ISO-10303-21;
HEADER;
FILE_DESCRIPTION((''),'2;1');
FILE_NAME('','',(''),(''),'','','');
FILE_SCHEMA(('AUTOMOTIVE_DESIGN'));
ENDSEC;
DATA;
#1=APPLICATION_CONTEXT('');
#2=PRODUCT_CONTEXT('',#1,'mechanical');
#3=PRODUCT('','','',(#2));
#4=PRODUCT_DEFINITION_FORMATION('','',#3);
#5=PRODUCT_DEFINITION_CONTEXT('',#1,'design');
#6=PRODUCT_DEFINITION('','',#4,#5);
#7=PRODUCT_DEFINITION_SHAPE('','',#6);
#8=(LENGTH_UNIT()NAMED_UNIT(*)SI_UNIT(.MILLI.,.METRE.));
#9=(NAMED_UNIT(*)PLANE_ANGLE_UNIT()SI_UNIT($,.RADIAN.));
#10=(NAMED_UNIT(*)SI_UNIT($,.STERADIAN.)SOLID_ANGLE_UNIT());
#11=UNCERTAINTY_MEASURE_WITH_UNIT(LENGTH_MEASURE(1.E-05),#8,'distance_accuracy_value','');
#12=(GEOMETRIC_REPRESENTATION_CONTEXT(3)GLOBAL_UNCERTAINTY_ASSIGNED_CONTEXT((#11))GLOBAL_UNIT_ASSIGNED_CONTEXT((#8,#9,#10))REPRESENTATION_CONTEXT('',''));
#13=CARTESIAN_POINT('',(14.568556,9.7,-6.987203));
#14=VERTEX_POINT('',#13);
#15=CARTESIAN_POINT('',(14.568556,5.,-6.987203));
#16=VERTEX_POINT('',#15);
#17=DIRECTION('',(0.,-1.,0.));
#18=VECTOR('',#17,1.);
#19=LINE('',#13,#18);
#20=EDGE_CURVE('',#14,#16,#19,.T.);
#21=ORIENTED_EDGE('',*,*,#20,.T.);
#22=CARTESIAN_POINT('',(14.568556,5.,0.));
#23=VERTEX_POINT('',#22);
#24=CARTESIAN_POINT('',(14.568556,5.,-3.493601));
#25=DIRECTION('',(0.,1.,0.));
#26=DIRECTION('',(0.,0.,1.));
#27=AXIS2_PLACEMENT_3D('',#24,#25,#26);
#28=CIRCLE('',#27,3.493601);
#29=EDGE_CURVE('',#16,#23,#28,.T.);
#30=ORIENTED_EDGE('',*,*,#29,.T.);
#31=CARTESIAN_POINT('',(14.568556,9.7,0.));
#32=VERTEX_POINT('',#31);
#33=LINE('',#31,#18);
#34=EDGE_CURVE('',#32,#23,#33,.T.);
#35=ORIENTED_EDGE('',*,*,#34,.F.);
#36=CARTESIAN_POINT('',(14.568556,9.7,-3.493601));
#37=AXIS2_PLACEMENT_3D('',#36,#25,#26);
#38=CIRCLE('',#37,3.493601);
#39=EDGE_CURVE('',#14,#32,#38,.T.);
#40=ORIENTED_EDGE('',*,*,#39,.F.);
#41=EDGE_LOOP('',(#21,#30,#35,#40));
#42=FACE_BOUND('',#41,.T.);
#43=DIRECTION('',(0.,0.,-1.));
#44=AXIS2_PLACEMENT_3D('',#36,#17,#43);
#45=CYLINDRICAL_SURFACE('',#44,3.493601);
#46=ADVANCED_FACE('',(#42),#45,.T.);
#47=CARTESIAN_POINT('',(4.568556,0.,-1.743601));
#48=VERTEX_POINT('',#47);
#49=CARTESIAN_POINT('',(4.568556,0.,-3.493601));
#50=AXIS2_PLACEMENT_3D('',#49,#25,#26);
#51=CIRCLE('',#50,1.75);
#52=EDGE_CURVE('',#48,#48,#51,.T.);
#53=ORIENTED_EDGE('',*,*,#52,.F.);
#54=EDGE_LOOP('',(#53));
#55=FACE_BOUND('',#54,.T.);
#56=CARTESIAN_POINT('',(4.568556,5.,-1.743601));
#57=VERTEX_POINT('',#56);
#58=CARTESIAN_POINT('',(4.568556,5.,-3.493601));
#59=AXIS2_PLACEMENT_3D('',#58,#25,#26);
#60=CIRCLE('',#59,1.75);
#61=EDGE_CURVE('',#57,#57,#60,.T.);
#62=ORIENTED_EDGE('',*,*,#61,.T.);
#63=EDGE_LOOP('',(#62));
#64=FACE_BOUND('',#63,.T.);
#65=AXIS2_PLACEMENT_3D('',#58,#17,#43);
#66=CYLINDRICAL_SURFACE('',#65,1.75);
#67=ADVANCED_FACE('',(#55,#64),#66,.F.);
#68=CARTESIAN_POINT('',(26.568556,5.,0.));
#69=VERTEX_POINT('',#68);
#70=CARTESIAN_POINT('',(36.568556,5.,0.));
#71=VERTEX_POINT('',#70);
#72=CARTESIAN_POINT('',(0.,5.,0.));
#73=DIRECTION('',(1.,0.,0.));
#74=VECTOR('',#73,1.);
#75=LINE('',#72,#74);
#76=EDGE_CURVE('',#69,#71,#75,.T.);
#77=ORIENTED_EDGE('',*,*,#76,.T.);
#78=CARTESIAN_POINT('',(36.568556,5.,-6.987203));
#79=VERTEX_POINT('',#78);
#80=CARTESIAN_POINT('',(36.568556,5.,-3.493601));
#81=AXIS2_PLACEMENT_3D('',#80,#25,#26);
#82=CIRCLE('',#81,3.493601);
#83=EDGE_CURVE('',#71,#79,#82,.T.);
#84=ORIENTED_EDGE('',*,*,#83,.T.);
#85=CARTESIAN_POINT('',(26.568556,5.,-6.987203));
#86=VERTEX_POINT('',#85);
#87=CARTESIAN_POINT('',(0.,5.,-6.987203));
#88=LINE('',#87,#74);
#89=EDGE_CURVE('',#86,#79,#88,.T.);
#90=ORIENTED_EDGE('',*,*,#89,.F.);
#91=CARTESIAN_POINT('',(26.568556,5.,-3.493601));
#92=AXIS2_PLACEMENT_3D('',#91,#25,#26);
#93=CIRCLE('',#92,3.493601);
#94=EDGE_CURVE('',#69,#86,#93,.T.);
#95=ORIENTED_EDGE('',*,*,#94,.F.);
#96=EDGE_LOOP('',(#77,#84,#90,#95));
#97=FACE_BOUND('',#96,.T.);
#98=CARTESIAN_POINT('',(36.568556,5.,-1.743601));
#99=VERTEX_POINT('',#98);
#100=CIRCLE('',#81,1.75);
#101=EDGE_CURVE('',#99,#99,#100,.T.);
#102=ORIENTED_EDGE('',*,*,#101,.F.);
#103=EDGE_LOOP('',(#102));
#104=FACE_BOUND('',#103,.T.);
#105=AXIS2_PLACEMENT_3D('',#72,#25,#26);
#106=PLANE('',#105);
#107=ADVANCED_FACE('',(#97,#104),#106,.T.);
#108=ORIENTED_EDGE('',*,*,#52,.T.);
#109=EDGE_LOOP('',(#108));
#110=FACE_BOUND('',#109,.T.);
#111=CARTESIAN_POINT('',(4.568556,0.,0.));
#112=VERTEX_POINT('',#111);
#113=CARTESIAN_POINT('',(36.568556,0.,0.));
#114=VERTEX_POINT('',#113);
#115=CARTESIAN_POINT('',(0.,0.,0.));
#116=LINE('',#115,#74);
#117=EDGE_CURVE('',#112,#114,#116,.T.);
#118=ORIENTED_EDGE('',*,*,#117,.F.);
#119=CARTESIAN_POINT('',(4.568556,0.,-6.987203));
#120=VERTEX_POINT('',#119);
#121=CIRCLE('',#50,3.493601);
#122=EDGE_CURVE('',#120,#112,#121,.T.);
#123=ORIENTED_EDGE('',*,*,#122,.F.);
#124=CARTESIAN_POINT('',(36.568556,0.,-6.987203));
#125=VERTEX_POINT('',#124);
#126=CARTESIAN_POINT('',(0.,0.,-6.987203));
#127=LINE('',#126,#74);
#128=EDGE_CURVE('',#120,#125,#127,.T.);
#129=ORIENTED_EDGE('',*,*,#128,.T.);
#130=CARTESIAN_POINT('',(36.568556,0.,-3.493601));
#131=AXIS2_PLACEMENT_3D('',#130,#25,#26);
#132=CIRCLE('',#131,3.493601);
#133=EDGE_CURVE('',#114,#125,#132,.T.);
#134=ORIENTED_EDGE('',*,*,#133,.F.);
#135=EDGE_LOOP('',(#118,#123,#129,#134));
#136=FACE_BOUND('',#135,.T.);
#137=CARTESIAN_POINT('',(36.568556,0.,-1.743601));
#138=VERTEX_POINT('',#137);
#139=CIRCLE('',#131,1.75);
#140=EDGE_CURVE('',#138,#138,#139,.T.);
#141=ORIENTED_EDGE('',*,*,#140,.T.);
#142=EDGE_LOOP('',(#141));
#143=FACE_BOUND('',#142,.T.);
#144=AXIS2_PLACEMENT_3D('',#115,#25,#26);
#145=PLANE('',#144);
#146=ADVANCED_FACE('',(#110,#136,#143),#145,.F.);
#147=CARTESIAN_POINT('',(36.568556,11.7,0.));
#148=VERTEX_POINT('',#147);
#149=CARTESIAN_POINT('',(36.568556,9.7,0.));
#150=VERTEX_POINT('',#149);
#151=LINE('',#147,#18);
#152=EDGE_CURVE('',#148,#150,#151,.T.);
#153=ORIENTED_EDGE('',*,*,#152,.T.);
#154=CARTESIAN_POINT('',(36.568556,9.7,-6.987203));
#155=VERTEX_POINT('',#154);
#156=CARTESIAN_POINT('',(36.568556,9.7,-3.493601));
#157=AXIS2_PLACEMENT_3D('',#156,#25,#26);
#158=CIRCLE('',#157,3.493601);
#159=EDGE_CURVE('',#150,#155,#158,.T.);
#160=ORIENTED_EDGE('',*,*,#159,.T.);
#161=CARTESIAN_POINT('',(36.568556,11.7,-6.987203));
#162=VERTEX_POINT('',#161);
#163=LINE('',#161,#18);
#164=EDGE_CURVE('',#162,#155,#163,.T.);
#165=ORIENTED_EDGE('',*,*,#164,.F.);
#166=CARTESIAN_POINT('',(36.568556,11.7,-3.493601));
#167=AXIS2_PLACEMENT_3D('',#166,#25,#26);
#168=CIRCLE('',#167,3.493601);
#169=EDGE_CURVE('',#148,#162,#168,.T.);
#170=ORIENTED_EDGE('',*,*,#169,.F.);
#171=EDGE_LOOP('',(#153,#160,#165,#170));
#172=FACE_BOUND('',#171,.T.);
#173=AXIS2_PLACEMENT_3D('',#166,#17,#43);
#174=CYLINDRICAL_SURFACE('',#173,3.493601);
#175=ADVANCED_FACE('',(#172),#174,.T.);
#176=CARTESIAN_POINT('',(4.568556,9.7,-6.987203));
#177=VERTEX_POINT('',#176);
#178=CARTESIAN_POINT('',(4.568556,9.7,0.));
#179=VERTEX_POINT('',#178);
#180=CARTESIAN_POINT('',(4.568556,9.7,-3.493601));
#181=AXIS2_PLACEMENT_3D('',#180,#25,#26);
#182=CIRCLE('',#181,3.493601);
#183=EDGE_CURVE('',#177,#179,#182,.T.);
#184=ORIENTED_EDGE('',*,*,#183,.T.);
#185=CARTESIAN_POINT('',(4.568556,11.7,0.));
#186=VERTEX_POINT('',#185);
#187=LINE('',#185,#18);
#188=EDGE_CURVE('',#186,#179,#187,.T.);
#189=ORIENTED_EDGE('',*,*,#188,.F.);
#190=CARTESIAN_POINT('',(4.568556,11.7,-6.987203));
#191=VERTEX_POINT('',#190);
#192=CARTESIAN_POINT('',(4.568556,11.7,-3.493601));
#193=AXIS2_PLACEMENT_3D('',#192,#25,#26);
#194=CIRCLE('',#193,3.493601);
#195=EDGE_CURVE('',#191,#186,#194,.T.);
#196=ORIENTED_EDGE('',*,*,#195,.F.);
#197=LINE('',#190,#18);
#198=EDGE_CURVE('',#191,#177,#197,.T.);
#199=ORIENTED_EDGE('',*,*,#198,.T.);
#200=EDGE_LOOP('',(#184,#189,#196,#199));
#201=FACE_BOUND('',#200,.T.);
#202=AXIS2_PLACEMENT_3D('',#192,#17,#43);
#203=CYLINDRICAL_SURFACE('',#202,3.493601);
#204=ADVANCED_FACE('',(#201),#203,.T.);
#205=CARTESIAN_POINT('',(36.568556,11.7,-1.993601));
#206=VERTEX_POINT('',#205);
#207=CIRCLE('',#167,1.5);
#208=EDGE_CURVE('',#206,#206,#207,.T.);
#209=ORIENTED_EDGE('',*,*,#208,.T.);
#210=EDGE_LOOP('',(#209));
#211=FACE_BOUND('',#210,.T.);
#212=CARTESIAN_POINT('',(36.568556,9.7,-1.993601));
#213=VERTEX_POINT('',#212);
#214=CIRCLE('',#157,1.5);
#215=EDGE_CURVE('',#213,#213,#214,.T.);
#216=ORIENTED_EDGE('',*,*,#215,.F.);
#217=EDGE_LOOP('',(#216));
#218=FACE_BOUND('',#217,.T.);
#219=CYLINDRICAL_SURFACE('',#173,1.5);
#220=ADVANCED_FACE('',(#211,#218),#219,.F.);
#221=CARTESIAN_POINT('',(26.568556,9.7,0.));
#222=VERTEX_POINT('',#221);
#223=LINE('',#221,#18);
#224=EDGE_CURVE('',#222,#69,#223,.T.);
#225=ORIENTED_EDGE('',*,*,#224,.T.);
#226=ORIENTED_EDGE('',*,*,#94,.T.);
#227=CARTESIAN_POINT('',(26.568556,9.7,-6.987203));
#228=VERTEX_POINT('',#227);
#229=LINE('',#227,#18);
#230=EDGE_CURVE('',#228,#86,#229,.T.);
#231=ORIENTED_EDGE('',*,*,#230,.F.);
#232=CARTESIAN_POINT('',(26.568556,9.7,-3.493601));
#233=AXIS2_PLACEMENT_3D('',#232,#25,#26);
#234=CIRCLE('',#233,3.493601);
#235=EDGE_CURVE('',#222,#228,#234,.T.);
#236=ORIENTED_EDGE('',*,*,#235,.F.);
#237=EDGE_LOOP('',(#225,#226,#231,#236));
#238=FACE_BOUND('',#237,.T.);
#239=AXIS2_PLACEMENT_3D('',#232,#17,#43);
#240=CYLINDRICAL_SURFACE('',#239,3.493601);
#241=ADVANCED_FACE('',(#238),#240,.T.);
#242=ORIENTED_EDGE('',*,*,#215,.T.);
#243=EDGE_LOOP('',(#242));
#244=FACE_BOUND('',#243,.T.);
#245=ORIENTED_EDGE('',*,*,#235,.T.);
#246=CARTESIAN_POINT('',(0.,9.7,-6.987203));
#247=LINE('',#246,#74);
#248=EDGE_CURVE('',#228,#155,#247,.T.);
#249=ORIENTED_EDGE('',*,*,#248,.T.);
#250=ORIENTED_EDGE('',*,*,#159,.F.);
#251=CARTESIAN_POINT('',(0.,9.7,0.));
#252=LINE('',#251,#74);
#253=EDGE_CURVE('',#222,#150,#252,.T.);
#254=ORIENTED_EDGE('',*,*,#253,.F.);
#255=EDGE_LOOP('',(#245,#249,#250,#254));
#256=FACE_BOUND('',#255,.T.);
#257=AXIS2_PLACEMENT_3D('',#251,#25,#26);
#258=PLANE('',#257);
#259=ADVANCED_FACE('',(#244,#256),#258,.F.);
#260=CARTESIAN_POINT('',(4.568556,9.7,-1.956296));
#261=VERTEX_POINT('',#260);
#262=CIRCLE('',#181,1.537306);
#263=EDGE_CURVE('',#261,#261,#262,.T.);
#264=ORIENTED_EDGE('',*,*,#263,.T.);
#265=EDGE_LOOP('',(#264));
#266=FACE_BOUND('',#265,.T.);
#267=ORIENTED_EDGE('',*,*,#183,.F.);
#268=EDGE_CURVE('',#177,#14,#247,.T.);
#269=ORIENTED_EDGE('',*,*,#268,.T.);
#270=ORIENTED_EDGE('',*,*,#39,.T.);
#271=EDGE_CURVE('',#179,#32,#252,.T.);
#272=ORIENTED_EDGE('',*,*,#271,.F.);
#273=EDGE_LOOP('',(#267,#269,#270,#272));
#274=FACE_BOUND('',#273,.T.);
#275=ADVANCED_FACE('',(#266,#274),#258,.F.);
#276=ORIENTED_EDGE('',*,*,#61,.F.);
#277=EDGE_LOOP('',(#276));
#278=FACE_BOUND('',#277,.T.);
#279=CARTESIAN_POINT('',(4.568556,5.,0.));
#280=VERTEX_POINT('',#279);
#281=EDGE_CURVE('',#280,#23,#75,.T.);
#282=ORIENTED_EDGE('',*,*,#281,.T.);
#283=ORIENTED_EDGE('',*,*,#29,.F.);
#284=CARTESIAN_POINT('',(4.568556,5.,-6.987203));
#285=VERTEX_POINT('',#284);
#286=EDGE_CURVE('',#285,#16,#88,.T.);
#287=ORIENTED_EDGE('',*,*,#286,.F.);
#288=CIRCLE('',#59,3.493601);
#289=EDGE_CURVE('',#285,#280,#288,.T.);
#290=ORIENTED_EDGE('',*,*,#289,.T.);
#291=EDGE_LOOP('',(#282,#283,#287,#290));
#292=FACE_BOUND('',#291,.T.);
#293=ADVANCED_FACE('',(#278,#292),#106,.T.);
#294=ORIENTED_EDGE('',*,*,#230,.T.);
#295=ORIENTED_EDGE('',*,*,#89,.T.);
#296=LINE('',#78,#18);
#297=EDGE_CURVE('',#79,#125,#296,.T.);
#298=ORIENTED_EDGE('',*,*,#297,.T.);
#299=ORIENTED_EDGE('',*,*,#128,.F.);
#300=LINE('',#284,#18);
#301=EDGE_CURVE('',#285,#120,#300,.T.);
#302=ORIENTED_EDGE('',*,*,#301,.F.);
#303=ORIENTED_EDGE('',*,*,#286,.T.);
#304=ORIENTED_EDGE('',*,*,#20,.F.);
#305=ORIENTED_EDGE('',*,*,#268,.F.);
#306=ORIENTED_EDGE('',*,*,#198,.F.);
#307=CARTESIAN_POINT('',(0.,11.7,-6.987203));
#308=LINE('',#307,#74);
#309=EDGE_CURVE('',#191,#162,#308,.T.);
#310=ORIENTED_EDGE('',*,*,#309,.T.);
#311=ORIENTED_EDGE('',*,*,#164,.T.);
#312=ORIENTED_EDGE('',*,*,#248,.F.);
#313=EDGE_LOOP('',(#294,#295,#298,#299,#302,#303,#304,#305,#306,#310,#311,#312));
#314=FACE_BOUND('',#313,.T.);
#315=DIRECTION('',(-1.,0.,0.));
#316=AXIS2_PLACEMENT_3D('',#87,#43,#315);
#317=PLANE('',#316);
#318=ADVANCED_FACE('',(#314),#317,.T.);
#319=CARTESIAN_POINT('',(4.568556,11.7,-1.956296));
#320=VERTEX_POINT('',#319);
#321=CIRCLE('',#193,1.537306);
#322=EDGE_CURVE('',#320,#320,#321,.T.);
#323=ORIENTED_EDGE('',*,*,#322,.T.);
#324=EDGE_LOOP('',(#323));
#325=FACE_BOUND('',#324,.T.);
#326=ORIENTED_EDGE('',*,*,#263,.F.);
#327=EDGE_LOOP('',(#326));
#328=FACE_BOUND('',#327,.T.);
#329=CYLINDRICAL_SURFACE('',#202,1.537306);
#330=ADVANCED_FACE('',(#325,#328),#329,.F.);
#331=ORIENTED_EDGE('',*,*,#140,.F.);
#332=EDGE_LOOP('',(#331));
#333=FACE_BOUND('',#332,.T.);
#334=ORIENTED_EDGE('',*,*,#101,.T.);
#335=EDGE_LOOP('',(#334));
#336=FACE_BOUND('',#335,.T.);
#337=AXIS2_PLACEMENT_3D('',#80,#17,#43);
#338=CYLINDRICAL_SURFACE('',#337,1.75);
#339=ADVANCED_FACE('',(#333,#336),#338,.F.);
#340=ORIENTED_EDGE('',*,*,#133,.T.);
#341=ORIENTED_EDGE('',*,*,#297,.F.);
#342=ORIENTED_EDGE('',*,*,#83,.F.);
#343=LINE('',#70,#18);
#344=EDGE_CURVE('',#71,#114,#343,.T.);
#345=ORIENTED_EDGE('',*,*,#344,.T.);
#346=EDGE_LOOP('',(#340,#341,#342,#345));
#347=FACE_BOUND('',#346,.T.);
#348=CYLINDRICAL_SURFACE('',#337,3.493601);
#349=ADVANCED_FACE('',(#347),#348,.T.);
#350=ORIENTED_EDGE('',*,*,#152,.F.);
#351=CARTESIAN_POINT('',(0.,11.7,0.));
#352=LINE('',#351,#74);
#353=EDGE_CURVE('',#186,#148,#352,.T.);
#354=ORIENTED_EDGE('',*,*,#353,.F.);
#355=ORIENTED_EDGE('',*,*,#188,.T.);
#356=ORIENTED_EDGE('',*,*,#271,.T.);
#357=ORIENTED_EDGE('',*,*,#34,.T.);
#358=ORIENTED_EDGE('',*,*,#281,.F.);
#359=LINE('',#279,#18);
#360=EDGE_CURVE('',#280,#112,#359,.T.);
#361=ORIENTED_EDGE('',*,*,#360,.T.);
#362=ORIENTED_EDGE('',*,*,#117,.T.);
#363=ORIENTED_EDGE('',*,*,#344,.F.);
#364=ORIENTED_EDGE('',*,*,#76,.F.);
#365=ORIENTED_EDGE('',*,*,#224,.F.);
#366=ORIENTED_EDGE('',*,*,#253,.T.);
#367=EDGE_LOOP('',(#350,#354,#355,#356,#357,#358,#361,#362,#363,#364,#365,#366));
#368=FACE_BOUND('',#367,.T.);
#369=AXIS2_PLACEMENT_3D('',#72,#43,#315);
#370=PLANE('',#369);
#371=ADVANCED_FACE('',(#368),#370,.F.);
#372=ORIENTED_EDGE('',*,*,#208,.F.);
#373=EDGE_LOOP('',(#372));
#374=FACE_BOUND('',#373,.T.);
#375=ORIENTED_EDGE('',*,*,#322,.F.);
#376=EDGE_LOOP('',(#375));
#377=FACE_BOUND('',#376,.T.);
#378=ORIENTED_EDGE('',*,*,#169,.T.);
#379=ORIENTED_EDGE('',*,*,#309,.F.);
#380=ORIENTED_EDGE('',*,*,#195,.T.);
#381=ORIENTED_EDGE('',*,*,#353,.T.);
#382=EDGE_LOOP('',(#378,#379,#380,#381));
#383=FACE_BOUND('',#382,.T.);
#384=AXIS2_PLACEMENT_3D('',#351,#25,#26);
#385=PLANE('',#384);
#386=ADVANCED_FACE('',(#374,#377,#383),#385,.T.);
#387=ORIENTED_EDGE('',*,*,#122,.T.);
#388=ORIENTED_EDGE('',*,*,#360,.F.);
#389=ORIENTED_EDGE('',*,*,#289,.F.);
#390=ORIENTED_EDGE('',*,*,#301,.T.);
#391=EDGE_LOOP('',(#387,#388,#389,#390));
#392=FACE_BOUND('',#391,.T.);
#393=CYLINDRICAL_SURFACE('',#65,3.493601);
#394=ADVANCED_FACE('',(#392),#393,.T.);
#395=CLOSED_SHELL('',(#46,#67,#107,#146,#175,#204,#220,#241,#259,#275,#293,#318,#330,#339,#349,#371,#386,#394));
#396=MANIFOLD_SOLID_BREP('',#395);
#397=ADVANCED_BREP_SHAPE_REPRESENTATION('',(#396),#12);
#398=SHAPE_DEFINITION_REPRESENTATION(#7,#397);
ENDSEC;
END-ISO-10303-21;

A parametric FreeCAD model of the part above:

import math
import FreeCAD as App
import Part
import Sketcher

V = App.Vector
Q = App.Units.Quantity

doc = App.newDocument("Part")
params = doc.addObject("Spreadsheet::Sheet", "Params")
for row, (alias, value) in enumerate([
    ("sketch1_diameter", "3.5 mm"),
    ("sketch1_width", "32 mm"),
    ("pad1_length", "5 mm"),
    ("sketch2_width", "12 mm"),
    ("pad2_length", "4.7 mm"),
    ("sketch3_diameter", "3 mm"),
    ("sketch3_width", "32 mm"),
    ("pad3_length", "2 mm"),
], start=1):
    params.set(f"A{row}", alias)
    params.set(f"B{row}", "=" + value)
    params.setAlias(f"B{row}", alias)

body = doc.addObject("PartDesign::Body", "Body")

# Sketch on XZ plane
sketch1 = body.newObject("Sketcher::SketchObject", "Sketch")
sketch1.AttachmentSupport = (doc.getObject("XZ_Plane"), [""])
sketch1.MapMode = "FlatFace"
sketch1.addGeometry([
    Part.LineSegment(V(36.6, -7, 0), V(4.6, -7, 0)),  # 0
    Part.ArcOfCircle(Part.Circle(V(4.6, -3.5, 0), V(0, 0, 1), 3.5), math.radians(90), math.radians(270)),  # 1
    Part.LineSegment(V(4.6, 0, 0), V(36.6, 0, 0)),  # 2
    Part.ArcOfCircle(Part.Circle(V(36.6, -3.5, 0), V(0, 0, 1), 3.5), math.radians(-90), math.radians(90)),  # 3
    Part.Circle(V(4.6, -3.5, 0), V(0, 0, 1), 1.8),  # 4
    Part.Circle(V(36.6, -3.5, 0), V(0, 0, 1), 1.8),  # 5
], False)
sketch1.addConstraint([
    Sketcher.Constraint("Tangent", 0, 2, 1, 2),
    Sketcher.Constraint("Tangent", 1, 1, 2, 1),
    Sketcher.Constraint("Tangent", 2, 2, 3, 2),
    Sketcher.Constraint("Tangent", 3, 1, 0, 1),
    Sketcher.Constraint("Horizontal", 0),
    Sketcher.Constraint("Horizontal", 2),
    Sketcher.Constraint("Coincident", 4, 3, 1, 3),
    Sketcher.Constraint("Coincident", 5, 3, 3, 3),
    Sketcher.Constraint("Equal", 4, 5),
    Sketcher.Constraint("PointOnObject", 1, 1, -1),
    Sketcher.Constraint("Diameter", 4, Q("3.5 mm")),
    Sketcher.Constraint("DistanceX", 0, 2, 0, 1, Q("32 mm")),
    Sketcher.Constraint("Radius", 1, Q("3.493601 mm")),
    Sketcher.Constraint("DistanceX", -1, 1, 1, 3, Q("4.568556 mm")),
])
sketch1.setExpression("Constraints[10]", "Params.sketch1_diameter")
sketch1.setExpression("Constraints[11]", "Params.sketch1_width")
pad1 = body.newObject("PartDesign::Pad", "Pad")
pad1.Profile = sketch1
pad1.setExpression("Length", "Params.pad1_length")
pad1.Reversed = True

# Sketch on XZ plane
sketch2 = body.newObject("Sketcher::SketchObject", "Sketch001")
sketch2.AttachmentSupport = (doc.getObject("XZ_Plane"), [""])
sketch2.MapMode = "FlatFace"
sketch2.AttachmentOffset = App.Placement(V(0, 0, -5), App.Rotation())
sketch2.addGeometry([
    Part.ArcOfCircle(Part.Circle(V(26.6, -3.5, 0), V(0, 0, 1), 3.5), math.radians(-90), math.radians(90)),
    Part.LineSegment(V(26.6, -7, 0), V(14.6, -7, 0)),
    Part.ArcOfCircle(Part.Circle(V(14.6, -3.5, 0), V(0, 0, 1), 3.5), math.radians(90), math.radians(270)),
    Part.LineSegment(V(14.6, 0, 0), V(26.6, 0, 0)),
], False)
sketch2.addConstraint([
    Sketcher.Constraint("Tangent", 0, 1, 1, 1),
    Sketcher.Constraint("Tangent", 1, 2, 2, 2),
    Sketcher.Constraint("Tangent", 2, 1, 3, 1),
    Sketcher.Constraint("Tangent", 3, 2, 0, 2),
    Sketcher.Constraint("Horizontal", 1),
    Sketcher.Constraint("Horizontal", 3),
    Sketcher.Constraint("PointOnObject", 2, 1, -1),
    Sketcher.Constraint("DistanceX", 1, 2, 1, 1, Q("12 mm")),
    Sketcher.Constraint("Radius", 0, Q("3.493601 mm")),
    Sketcher.Constraint("DistanceX", -1, 1, 0, 3, Q("26.568556 mm")),
])
sketch2.setExpression("Constraints[7]", "Params.sketch2_width")
pad2 = body.newObject("PartDesign::Pad", "Pad001")
pad2.Profile = sketch2
pad2.setExpression("Length", "Params.pad2_length")
pad2.Reversed = True

# Sketch on XZ plane
sketch3 = body.newObject("Sketcher::SketchObject", "Sketch002")
sketch3.AttachmentSupport = (doc.getObject("XZ_Plane"), [""])
sketch3.MapMode = "FlatFace"
sketch3.AttachmentOffset = App.Placement(V(0, 0, -9.7), App.Rotation())
sketch3.addGeometry([
    Part.LineSegment(V(36.6, -7, 0), V(4.6, -7, 0)),  # 0
    Part.ArcOfCircle(Part.Circle(V(4.6, -3.5, 0), V(0, 0, 1), 3.5), math.radians(90), math.radians(270)),  # 1
    Part.LineSegment(V(4.6, 0, 0), V(36.6, 0, 0)),  # 2
    Part.ArcOfCircle(Part.Circle(V(36.6, -3.5, 0), V(0, 0, 1), 3.5), math.radians(-90), math.radians(90)),  # 3
    Part.Circle(V(36.6, -3.5, 0), V(0, 0, 1), 1.5),  # 4
    Part.Circle(V(4.6, -3.5, 0), V(0, 0, 1), 1.5),  # 5
], False)
sketch3.addConstraint([
    Sketcher.Constraint("Tangent", 0, 2, 1, 2),
    Sketcher.Constraint("Tangent", 1, 1, 2, 1),
    Sketcher.Constraint("Tangent", 2, 2, 3, 2),
    Sketcher.Constraint("Tangent", 3, 1, 0, 1),
    Sketcher.Constraint("Horizontal", 0),
    Sketcher.Constraint("Horizontal", 2),
    Sketcher.Constraint("Coincident", 4, 3, 3, 3),
    Sketcher.Constraint("Coincident", 5, 3, 1, 3),
    Sketcher.Constraint("PointOnObject", 1, 1, -1),
    Sketcher.Constraint("Diameter", 4, Q("3 mm")),
    Sketcher.Constraint("DistanceX", 0, 2, 0, 1, Q("32 mm")),
    Sketcher.Constraint("Radius", 1, Q("3.493601 mm")),
    Sketcher.Constraint("Diameter", 5, Q("3.074611 mm")),
    Sketcher.Constraint("DistanceX", -1, 1, 1, 3, Q("4.568556 mm")),
])
sketch3.setExpression("Constraints[9]", "Params.sketch3_diameter")
sketch3.setExpression("Constraints[10]", "Params.sketch3_width")
pad3 = body.newObject("PartDesign::Pad", "Pad002")
pad3.Profile = sketch3
pad3.setExpression("Length", "Params.pad3_length")
pad3.Reversed = True

doc.recompute()
